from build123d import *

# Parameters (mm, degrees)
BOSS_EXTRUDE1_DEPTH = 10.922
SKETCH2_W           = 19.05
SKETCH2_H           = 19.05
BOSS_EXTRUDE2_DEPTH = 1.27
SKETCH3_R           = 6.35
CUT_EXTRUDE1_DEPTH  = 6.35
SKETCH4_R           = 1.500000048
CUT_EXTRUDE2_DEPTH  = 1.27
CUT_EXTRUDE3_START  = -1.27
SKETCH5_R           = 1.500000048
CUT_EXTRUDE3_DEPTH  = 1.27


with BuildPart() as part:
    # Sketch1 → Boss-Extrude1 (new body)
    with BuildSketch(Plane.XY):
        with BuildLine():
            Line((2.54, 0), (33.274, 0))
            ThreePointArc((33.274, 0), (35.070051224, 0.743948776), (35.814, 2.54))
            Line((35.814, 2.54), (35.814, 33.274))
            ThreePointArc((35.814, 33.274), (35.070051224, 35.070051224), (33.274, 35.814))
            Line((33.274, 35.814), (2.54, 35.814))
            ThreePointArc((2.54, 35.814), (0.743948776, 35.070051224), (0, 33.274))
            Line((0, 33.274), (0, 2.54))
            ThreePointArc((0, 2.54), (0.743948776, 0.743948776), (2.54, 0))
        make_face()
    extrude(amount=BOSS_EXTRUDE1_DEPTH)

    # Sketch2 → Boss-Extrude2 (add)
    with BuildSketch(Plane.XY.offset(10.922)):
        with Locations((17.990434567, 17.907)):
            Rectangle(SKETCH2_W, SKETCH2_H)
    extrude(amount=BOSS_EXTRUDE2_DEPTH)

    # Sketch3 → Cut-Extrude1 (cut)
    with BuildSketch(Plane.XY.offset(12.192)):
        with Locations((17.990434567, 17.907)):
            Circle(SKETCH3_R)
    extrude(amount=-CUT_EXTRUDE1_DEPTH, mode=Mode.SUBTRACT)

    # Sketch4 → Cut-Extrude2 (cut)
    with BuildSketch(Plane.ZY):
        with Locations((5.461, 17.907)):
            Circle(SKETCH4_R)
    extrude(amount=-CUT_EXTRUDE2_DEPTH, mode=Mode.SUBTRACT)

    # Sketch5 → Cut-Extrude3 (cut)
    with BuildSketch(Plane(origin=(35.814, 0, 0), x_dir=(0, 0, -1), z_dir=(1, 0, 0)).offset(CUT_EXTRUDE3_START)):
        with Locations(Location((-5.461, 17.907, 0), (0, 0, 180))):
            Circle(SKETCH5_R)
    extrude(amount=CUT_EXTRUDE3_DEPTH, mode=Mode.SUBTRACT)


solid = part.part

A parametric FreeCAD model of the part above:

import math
import FreeCAD as App
import Part
import Sketcher
Q = App.Units.Quantity

doc = App.newDocument("Part")
body = doc.addObject("PartDesign::Body", "Body")

# Sketch on XY plane
sketch1 = body.newObject("Sketcher::SketchObject", "Sketch")
sketch1.AttachmentSupport = (doc.getObject("XY_Plane"), [""])
sketch1.MapMode = "FlatFace"
sketch1.addGeometry(Part.LineSegment(App.Vector(2.5, 0, 0), App.Vector(33.3, 0, 0)), False)
sketch1.addGeometry(Part.ArcOfCircle(Part.Circle(App.Vector(33.3, 2.5, 0), App.Vector(0, 0, 1), 2.5), math.radians(-90), math.radians(0)), False)
sketch1.addGeometry(Part.LineSegment(App.Vector(35.8, 2.5, 0), App.Vector(35.8, 33.3, 0)), False)
sketch1.addGeometry(Part.ArcOfCircle(Part.Circle(App.Vector(33.3, 33.3, 0), App.Vector(0, 0, 1), 2.5), math.radians(0), math.radians(90)), False)
sketch1.addGeometry(Part.LineSegment(App.Vector(33.3, 35.8, 0), App.Vector(2.5, 35.8, 0)), False)
sketch1.addGeometry(Part.ArcOfCircle(Part.Circle(App.Vector(2.5, 33.3, 0), App.Vector(0, 0, 1), 2.5), math.radians(90), math.radians(180)), False)
sketch1.addGeometry(Part.LineSegment(App.Vector(0, 33.3, 0), App.Vector(0, 2.5, 0)), False)
sketch1.addGeometry(Part.ArcOfCircle(Part.Circle(App.Vector(2.5, 2.5, 0), App.Vector(0, 0, 1), 2.5), math.radians(-180), math.radians(-90)), False)
sketch1.addConstraint(Sketcher.Constraint("Tangent", 0, 2, 1, 1))
sketch1.addConstraint(Sketcher.Constraint("Tangent", 1, 2, 2, 1))
sketch1.addConstraint(Sketcher.Constraint("Tangent", 2, 2, 3, 1))
sketch1.addConstraint(Sketcher.Constraint("Tangent", 3, 2, 4, 1))
sketch1.addConstraint(Sketcher.Constraint("Tangent", 4, 2, 5, 1))
sketch1.addConstraint(Sketcher.Constraint("Tangent", 5, 2, 6, 1))
sketch1.addConstraint(Sketcher.Constraint("Tangent", 6, 2, 7, 1))
sketch1.addConstraint(Sketcher.Constraint("Tangent", 7, 2, 0, 1))
sketch1.addConstraint(Sketcher.Constraint("Horizontal", 0))
sketch1.addConstraint(Sketcher.Constraint("Vertical", 2))
sketch1.addConstraint(Sketcher.Constraint("Horizontal", 4))
sketch1.addConstraint(Sketcher.Constraint("Vertical", 6))
sketch1.addConstraint(Sketcher.Constraint("Equal", 1, 3))
sketch1.addConstraint(Sketcher.Constraint("Equal", 3, 5))
sketch1.addConstraint(Sketcher.Constraint("Equal", 5, 7))
sketch1.addConstraint(Sketcher.Constraint("PointOnObject", 0, 2, -1))
sketch1.addConstraint(Sketcher.Constraint("PointOnObject", 5, 2, -2))
sketch1.addConstraint(Sketcher.Constraint("Equal", 4, 2))
sketch1.addConstraint(Sketcher.Constraint("Radius", 1, Q("0.1 in")))
sketch1.addConstraint(Sketcher.Constraint("DistanceX", 0, 1, 0, 2, Q("1.21 in")))
pad1 = body.newObject("PartDesign::Pad", "Pad")
pad1.Profile = sketch1
pad1.Length = Q("0.43 in")

# Sketch on XY plane
sketch2 = body.newObject("Sketcher::SketchObject", "Sketch001")
sketch2.AttachmentSupport = (doc.getObject("XY_Plane"), [""])
sketch2.MapMode = "FlatFace"
sketch2.AttachmentOffset = App.Placement(App.Vector(0, 0, 0.43 * 25.4), App.Rotation())
sketch2.addGeometry(Part.LineSegment(App.Vector(8, 27, 0), App.Vector(8, 8, 0)), False)
sketch2.addGeometry(Part.LineSegment(App.Vector(8, 8, 0), App.Vector(28, 8, 0)), False)
sketch2.addGeometry(Part.LineSegment(App.Vector(28, 8, 0), App.Vector(28, 27, 0)), False)
sketch2.addGeometry(Part.LineSegment(App.Vector(28, 27, 0), App.Vector(8, 27, 0)), False)
sketch2.addConstraint(Sketcher.Constraint("Coincident", 0, 2, 1, 1))
sketch2.addConstraint(Sketcher.Constraint("Coincident", 1, 2, 2, 1))
sketch2.addConstraint(Sketcher.Constraint("Coincident", 2, 2, 3, 1))
sketch2.addConstraint(Sketcher.Constraint("Coincident", 3, 2, 0, 1))
sketch2.addConstraint(Sketcher.Constraint("Vertical", 0))
sketch2.addConstraint(Sketcher.Constraint("Horizontal", 1))
sketch2.addConstraint(Sketcher.Constraint("Vertical", 2))
sketch2.addConstraint(Sketcher.Constraint("Horizontal", 3))
sketch2.addConstraint(Sketcher.Constraint("Equal", 3, 0))
sketch2.addConstraint(Sketcher.Constraint("DistanceX", 1, 1, 1, 2, Q("0.75 in")))
sketch2.addConstraint(Sketcher.Constraint("DistanceY", -1, 1, 0, 2, Q("0.33 in")))
sketch2.addConstraint(Sketcher.Constraint("DistanceX", -1, 1, 0, 2, Q("8.465435 mm")))
pad2 = body.newObject("PartDesign::Pad", "Pad001")
pad2.Profile = sketch2
pad2.Length = Q("0.05 in")

# Sketch on XY plane
sketch3 = body.newObject("Sketcher::SketchObject", "Sketch002")
sketch3.AttachmentSupport = (doc.getObject("XY_Plane"), [""])
sketch3.MapMode = "FlatFace"
sketch3.AttachmentOffset = App.Placement(App.Vector(0, 0, 0.48 * 25.4), App.Rotation())
sketch3.addGeometry(Part.Circle(App.Vector(18, 18, 0), App.Vector(0, 0, 1), 6), False)
sketch3.addConstraint(Sketcher.Constraint("Diameter", 0, Q("0.5 in")))
sketch3.addConstraint(Sketcher.Constraint("DistanceY", -1, 1, 0, 3, Q("0.705 in")))
sketch3.addConstraint(Sketcher.Constraint("DistanceX", -1, 1, 0, 3, Q("17.990435 mm")))
pocket1 = body.newObject("PartDesign::Pocket", "Pocket")
pocket1.Profile = sketch3
pocket1.Length = Q("0.25 in")

# Sketch on YZ plane
sketch4 = body.newObject("Sketcher::SketchObject", "Sketch003")
sketch4.AttachmentSupport = (doc.getObject("YZ_Plane"), [""])
sketch4.MapMode = "FlatFace"
sketch4.addGeometry(Part.Circle(App.Vector(17.9, 5.5, 0), App.Vector(0, 0, 1), 1.5), False)
sketch4.addConstraint(Sketcher.Constraint("Diameter", 0, Q("3 mm")))
sketch4.addConstraint(Sketcher.Constraint("DistanceX", -1, 1, 0, 3, Q("0.705 in")))
sketch4.addConstraint(Sketcher.Constraint("DistanceY", -1, 1, 0, 3, Q("0.215 in")))
pocket2 = body.newObject("PartDesign::Pocket", "Pocket001")
pocket2.Profile = sketch4
pocket2.Length = Q("0.05 in")
pocket2.Reversed = True

# Sketch on YZ plane
sketch5 = body.newObject("Sketcher::SketchObject", "Sketch004")
sketch5.AttachmentSupport = (doc.getObject("YZ_Plane"), [""])
sketch5.MapMode = "FlatFace"
sketch5.AttachmentOffset = App.Placement(App.Vector(0, 0, 1.36 * 25.4), App.Rotation())
sketch5.addGeometry(Part.Circle(App.Vector(17.9, 5.5, 0), App.Vector(0, 0, 1), 1.5), False)
sketch5.addConstraint(Sketcher.Constraint("Diameter", 0, Q("3 mm")))
sketch5.addConstraint(Sketcher.Constraint("DistanceX", -1, 1, 0, 3, Q("0.705 in")))
sketch5.addConstraint(Sketcher.Constraint("DistanceY", -1, 1, 0, 3, Q("0.215 in")))
pocket3 = body.newObject("PartDesign::Pocket", "Pocket002")
pocket3.Profile = sketch5
pocket3.Length = Q("0.05 in")
pocket3.Reversed = True

doc.recompute()
